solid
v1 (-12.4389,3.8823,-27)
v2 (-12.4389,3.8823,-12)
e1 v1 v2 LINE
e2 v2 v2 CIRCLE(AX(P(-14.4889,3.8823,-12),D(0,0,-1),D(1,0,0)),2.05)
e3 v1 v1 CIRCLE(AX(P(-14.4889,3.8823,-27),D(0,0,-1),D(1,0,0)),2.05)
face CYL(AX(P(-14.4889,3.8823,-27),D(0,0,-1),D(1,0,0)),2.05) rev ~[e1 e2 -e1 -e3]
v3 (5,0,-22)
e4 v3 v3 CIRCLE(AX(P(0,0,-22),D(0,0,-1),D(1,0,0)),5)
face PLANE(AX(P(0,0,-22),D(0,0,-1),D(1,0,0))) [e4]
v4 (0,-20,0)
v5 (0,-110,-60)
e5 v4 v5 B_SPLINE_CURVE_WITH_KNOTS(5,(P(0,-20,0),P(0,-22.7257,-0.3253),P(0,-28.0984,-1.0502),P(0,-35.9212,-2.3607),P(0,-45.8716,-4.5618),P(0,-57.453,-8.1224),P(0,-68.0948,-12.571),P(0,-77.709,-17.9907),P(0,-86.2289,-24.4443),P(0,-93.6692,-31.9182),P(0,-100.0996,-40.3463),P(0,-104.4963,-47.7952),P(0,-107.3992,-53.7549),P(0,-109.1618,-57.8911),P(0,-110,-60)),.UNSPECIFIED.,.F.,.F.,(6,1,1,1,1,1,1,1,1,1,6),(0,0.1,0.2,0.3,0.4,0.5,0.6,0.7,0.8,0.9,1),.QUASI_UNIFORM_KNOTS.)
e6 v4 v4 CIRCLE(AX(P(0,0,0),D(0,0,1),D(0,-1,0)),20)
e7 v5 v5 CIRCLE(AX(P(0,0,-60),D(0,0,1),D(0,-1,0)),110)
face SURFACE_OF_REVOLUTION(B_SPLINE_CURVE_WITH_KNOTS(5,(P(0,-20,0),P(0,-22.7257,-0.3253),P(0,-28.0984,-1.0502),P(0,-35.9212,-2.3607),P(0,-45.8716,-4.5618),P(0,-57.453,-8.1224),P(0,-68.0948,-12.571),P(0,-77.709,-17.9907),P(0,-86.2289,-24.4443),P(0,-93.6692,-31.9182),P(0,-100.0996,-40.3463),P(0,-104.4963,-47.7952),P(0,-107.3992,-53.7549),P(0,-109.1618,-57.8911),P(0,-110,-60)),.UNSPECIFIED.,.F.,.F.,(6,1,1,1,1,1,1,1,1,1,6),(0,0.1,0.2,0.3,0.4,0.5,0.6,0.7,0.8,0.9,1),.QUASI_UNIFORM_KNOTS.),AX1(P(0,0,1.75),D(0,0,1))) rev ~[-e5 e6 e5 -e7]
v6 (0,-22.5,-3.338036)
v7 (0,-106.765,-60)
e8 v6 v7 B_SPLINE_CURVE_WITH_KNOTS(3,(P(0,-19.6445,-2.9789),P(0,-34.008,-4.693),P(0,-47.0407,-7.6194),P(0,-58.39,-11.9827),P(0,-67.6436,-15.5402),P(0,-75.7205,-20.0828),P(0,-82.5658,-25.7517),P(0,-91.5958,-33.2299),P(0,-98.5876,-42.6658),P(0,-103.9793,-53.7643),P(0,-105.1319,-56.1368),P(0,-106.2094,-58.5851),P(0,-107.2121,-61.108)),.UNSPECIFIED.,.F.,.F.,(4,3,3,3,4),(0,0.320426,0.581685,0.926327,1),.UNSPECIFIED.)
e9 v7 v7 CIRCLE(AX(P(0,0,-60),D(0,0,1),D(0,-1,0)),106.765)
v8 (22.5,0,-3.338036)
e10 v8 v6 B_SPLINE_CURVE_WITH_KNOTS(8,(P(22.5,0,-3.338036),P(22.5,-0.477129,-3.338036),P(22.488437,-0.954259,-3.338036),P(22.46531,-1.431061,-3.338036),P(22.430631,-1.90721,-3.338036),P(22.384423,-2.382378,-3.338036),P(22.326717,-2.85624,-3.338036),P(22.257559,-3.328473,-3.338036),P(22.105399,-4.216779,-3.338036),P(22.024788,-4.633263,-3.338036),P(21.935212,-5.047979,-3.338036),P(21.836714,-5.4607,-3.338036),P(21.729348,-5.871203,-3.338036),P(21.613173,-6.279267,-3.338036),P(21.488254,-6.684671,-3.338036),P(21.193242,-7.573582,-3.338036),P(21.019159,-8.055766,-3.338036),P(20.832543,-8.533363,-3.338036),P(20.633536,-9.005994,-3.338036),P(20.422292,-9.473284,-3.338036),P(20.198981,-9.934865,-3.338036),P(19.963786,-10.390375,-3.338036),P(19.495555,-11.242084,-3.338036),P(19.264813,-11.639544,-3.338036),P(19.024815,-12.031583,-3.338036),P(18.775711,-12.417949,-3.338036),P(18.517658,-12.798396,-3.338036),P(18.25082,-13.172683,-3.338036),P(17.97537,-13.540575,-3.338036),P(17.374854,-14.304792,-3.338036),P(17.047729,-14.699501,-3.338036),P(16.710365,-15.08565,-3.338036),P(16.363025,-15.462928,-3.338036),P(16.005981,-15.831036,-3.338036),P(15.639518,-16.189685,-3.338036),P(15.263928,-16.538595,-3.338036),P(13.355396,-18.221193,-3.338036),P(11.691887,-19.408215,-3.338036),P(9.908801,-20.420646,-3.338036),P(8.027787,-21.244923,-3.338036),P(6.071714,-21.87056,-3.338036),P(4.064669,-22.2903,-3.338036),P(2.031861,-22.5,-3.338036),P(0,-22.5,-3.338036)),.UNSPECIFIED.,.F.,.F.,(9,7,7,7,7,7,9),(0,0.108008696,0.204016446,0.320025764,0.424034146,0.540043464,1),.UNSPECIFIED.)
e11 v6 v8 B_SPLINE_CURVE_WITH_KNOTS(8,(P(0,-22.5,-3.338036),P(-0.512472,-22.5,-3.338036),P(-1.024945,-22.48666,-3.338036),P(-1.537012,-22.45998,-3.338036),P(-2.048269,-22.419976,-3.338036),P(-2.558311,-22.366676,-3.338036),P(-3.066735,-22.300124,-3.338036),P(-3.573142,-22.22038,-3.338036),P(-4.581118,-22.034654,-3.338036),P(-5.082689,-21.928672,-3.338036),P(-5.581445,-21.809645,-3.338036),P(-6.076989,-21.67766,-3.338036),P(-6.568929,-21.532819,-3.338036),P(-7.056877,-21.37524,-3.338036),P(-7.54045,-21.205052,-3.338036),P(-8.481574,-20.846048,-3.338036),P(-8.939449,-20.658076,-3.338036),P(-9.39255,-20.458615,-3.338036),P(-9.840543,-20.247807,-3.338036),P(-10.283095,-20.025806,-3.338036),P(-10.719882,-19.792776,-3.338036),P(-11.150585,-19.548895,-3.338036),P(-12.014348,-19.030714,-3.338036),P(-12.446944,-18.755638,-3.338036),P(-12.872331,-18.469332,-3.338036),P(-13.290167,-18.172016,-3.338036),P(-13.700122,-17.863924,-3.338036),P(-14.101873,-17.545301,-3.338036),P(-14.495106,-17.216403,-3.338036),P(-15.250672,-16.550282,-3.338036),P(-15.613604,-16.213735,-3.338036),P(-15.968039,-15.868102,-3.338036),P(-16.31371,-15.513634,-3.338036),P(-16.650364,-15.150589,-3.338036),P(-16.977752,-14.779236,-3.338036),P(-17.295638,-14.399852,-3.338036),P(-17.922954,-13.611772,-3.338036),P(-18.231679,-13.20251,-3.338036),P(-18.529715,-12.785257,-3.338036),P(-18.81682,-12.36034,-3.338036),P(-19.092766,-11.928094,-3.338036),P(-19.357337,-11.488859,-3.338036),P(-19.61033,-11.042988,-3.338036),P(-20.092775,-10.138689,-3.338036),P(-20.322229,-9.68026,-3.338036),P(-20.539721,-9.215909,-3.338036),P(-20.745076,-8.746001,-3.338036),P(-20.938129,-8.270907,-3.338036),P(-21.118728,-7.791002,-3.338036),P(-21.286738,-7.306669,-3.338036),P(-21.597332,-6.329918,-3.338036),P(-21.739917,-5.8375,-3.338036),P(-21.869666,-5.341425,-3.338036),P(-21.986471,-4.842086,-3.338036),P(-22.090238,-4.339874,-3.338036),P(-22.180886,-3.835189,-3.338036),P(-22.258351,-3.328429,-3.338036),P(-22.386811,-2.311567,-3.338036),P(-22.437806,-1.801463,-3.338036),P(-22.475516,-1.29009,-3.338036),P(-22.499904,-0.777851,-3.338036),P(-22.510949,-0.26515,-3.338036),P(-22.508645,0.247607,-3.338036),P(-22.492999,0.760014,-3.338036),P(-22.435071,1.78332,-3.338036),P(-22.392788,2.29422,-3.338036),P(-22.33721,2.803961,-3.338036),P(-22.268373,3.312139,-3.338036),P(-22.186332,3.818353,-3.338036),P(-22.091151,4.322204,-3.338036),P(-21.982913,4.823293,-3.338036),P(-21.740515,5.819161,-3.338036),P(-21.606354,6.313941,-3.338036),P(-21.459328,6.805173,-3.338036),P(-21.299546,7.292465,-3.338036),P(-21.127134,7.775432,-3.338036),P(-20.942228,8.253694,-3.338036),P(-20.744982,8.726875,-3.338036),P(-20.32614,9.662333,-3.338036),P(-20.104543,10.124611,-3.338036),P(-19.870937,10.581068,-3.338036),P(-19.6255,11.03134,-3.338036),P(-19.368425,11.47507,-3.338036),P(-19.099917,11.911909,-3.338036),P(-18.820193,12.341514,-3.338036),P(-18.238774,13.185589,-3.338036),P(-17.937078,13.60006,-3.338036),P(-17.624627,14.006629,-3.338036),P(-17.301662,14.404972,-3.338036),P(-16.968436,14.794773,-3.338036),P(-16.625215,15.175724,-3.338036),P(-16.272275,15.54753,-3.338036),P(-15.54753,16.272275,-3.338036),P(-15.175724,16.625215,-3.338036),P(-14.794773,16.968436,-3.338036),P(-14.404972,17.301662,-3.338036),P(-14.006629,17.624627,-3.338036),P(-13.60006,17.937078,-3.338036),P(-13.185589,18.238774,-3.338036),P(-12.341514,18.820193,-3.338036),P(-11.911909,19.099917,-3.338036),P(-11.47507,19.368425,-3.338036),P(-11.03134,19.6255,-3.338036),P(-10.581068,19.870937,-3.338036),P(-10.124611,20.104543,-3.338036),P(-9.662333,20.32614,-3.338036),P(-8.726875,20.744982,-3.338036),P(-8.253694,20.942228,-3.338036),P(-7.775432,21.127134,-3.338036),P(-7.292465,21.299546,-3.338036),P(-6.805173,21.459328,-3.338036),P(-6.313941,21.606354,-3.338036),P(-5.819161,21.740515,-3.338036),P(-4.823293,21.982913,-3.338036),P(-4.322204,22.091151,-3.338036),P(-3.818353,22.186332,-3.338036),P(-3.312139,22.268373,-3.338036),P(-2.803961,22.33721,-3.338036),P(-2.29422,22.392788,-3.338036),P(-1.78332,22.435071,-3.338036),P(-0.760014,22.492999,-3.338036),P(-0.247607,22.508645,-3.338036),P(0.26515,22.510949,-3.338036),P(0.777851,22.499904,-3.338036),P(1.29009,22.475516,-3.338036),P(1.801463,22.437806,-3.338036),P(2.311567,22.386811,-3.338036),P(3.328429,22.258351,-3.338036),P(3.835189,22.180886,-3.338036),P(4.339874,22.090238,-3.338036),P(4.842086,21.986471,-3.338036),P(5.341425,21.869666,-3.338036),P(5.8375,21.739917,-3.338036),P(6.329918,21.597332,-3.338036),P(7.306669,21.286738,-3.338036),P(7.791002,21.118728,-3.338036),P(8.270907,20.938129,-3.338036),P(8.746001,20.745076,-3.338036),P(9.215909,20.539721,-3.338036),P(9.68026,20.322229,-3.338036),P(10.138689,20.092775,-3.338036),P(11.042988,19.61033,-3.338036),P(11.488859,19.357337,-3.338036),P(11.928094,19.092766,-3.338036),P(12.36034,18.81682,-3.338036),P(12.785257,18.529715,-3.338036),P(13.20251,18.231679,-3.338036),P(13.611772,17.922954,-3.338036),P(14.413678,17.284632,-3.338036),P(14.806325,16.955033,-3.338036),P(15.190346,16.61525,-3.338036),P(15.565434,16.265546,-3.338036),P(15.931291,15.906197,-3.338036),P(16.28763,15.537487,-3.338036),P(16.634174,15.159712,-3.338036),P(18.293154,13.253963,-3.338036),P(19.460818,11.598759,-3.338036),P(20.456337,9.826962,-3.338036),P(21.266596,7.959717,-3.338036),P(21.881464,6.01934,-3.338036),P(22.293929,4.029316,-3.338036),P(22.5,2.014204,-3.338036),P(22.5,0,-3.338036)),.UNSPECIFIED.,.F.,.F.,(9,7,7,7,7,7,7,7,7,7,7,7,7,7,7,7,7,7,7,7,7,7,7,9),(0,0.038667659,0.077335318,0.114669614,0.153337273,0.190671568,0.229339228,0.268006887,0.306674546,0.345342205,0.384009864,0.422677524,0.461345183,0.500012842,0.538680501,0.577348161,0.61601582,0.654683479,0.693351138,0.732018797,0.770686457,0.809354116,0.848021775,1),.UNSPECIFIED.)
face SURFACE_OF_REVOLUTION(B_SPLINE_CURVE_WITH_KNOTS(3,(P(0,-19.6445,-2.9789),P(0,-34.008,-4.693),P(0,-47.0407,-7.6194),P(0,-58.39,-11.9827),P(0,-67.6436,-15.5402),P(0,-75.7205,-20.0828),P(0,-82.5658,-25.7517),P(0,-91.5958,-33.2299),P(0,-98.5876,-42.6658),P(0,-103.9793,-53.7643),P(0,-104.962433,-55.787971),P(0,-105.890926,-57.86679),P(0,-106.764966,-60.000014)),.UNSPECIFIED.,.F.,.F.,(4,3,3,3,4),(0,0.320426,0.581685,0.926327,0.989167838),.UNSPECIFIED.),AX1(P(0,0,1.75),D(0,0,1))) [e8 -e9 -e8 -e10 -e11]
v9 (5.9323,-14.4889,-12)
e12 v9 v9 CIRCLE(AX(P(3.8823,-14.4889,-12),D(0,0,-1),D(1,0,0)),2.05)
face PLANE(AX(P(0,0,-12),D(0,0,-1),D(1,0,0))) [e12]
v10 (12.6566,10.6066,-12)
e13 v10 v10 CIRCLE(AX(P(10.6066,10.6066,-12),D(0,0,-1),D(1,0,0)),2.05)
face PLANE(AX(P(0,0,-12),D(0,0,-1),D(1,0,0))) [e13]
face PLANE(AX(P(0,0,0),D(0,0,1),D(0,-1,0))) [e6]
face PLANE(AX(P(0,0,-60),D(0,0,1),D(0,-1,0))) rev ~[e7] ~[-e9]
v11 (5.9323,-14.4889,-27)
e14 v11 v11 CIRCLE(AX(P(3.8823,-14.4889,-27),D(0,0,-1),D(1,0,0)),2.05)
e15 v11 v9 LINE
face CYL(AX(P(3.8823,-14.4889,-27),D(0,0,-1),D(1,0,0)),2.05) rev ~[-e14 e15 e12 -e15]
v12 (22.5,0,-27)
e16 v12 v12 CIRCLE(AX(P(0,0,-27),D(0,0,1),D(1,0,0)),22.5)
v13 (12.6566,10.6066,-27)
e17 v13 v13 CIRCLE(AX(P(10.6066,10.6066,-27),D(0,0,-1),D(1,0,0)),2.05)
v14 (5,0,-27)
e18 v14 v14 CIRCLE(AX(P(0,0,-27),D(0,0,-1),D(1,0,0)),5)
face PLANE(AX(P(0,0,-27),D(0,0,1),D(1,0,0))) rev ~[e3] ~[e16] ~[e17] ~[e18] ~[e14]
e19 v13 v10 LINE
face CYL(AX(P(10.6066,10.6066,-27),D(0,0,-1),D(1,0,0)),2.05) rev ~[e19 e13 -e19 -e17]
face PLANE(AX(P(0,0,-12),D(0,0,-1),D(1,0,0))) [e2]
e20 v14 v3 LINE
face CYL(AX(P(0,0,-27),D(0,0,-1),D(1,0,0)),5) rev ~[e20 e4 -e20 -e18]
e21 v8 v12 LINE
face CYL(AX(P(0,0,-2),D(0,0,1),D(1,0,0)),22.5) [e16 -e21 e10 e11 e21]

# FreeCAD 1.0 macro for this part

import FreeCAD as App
import Part
import Sketcher
from FreeCAD import Vector

doc = App.newDocument("Part")
body = doc.addObject("PartDesign::Body", "Body")

# Sketch on YZ plane
sketch1 = doc.addObject("Sketcher::SketchObject", "Sketch")
body.addObject(sketch1)
sketch1.AttachmentSupport = (doc.YZ_Plane, [""])
sketch1.MapMode = "FlatFace"
sketch1.addGeometry([
    Part.LineSegment(Vector(0, 0, 0), Vector(-20, 0, 0)),  # 0
    Part.BSplineCurve([Vector(-20, 0, 0), Vector(-22.7257, -0.3253, 0), Vector(-28.0984, -1.0502, 0), Vector(-35.9212, -2.3607, 0), Vector(-45.8716, -4.5618, 0), Vector(-57.453, -8.1224, 0), Vector(-68.0948, -12.571, 0), Vector(-77.709, -17.9907, 0), Vector(-86.2289, -24.4443, 0), Vector(-93.6692, -31.9182, 0), Vector(-100.0996, -40.3463, 0), Vector(-104.4963, -47.7952, 0), Vector(-107.3992, -53.7549, 0), Vector(-109.1618, -57.8911, 0), Vector(-110, -60, 0)], [6, 1, 1, 1, 1, 1, 1, 1, 1, 1, 6], [0, 0.1, 0.2, 0.3, 0.4, 0.5, 0.6, 0.7, 0.8, 0.9, 1], False, 5, [1, 1, 1, 1, 1, 1, 1, 1, 1, 1, 1, 1, 1, 1, 1], False),  # 1
    Part.LineSegment(Vector(-110, -60, 0), Vector(-106.765, -60, 0)),  # 2
    Part.BSplineCurve([Vector(-19.6445, -2.9789, 0), Vector(-34.008, -4.693, 0), Vector(-47.0407, -7.6194, 0), Vector(-58.39, -11.9827, 0), Vector(-67.6436, -15.5402, 0), Vector(-75.7205, -20.0828, 0), Vector(-82.5658, -25.7517, 0), Vector(-91.5958, -33.2299, 0), Vector(-98.5876, -42.6658, 0), Vector(-103.9793, -53.7643, 0), Vector(-104.962433, -55.787971, 0), Vector(-105.890926, -57.86679, 0), Vector(-106.764966, -60.000014, 0)], [4, 3, 3, 3, 4], [0, 0.320426, 0.581685, 0.926327, 0.989167838], False, 3, [1, 1, 1, 1, 1, 1, 1, 1, 1, 1, 1, 1, 1], False),  # 3
    Part.LineSegment(Vector(-19.6445, -2.9789, 0), Vector(0, -2.9702, 0)),  # 4
    Part.LineSegment(Vector(0, -2.9702, 0), Vector(0, 0, 0)),  # 5
], False)
sketch1.addConstraint([
    Sketcher.Constraint("Block", 1),
    Sketcher.Constraint("Block", 3),
    Sketcher.Constraint("Coincident", 0, 2, 1, 1),
    Sketcher.Constraint("Coincident", 1, 2, 2, 1),
    Sketcher.Constraint("Coincident", 2, 2, 3, 2),
    Sketcher.Constraint("Coincident", 3, 1, 4, 1),
    Sketcher.Constraint("Coincident", 4, 2, 5, 1),
    Sketcher.Constraint("Coincident", 5, 2, 0, 1),
    Sketcher.Constraint("Horizontal", 0),
    Sketcher.Constraint("Vertical", 5),
    Sketcher.Constraint("PointOnObject", 4, 2, -2),
    Sketcher.Constraint("DistanceY", 5, 1, 5, 2, 2.9702),
])
revolution = doc.addObject("PartDesign::Revolution", "Revolution")
body.addObject(revolution)
revolution.Profile = sketch1
revolution.ReferenceAxis = (sketch1, ["V_Axis"])
revolution.Angle = 360

# Sketch on XY plane
sketch2 = doc.addObject("Sketcher::SketchObject", "Sketch001")
body.addObject(sketch2)
sketch2.AttachmentSupport = (doc.XY_Plane, [""])
sketch2.MapMode = "FlatFace"
sketch2.AttachmentOffset = App.Placement(Vector(0, 0, -2), App.Rotation())
sketch2.addGeometry(Part.Circle(Vector(0, 0, 0), Vector(0, 0, 1), 22), False)
sketch2.addConstraint([
    Sketcher.Constraint("Coincident", 0, 3, -1, 1),
    Sketcher.Constraint("Diameter", 0, 45.0),
])
pad1 = doc.addObject("PartDesign::Pad", "Pad")
body.addObject(pad1)
pad1.Profile = sketch2
pad1.Length = 25
pad1.Reversed = True

# Sketch on XY plane
sketch3 = doc.addObject("Sketcher::SketchObject", "Sketch002")
body.addObject(sketch3)
sketch3.AttachmentSupport = (doc.XY_Plane, [""])
sketch3.MapMode = "FlatFace"
sketch3.AttachmentOffset = App.Placement(Vector(0, 0, -27), App.Rotation())
sketch3.addGeometry([
    Part.Circle(Vector(10.6, 10.6, 0), Vector(0, 0, 1), 2),
    Part.Circle(Vector(3.9, -14.5, 0), Vector(0, 0, 1), 2),
    Part.Circle(Vector(-14.5, 3.9, 0), Vector(0, 0, 1), 2),
], False)
sketch3.addConstraint([
    Sketcher.Constraint("Equal", 0, 1),
    Sketcher.Constraint("Equal", 1, 2),
    Sketcher.Constraint("Diameter", 0, 4.1),
    Sketcher.Constraint("DistanceY", 1, 3, -1, 1, 14.489),
    Sketcher.Constraint("DistanceX", 2, 3, -1, 1, 14.489),
    Sketcher.Constraint("DistanceX", -1, 1, 0, 3, 10.6066),
    Sketcher.Constraint("DistanceY", -1, 1, 0, 3, 10.6066),
    Sketcher.Constraint("DistanceX", -1, 1, 1, 3, 3.8823),
    Sketcher.Constraint("DistanceY", -1, 1, 2, 3, 3.8823),
])
pocket1 = doc.addObject("PartDesign::Pocket", "Pocket")
body.addObject(pocket1)
pocket1.Profile = sketch3
pocket1.Length = 15
pocket1.Reversed = True

# Sketch on XY plane
sketch4 = doc.addObject("Sketcher::SketchObject", "Sketch003")
body.addObject(sketch4)
sketch4.AttachmentSupport = (doc.XY_Plane, [""])
sketch4.MapMode = "FlatFace"
sketch4.AttachmentOffset = App.Placement(Vector(0, 0, -27), App.Rotation())
sketch4.addGeometry(Part.Circle(Vector(0, 0, 0), Vector(0, 0, 1), 5), False)
sketch4.addConstraint([
    Sketcher.Constraint("Coincident", 0, 3, -1, 1),
    Sketcher.Constraint("Diameter", 0, 10.0),
])
pocket2 = doc.addObject("PartDesign::Pocket", "Pocket001")
body.addObject(pocket2)
pocket2.Profile = sketch4
pocket2.Length = 5
pocket2.Reversed = True

doc.recompute()
